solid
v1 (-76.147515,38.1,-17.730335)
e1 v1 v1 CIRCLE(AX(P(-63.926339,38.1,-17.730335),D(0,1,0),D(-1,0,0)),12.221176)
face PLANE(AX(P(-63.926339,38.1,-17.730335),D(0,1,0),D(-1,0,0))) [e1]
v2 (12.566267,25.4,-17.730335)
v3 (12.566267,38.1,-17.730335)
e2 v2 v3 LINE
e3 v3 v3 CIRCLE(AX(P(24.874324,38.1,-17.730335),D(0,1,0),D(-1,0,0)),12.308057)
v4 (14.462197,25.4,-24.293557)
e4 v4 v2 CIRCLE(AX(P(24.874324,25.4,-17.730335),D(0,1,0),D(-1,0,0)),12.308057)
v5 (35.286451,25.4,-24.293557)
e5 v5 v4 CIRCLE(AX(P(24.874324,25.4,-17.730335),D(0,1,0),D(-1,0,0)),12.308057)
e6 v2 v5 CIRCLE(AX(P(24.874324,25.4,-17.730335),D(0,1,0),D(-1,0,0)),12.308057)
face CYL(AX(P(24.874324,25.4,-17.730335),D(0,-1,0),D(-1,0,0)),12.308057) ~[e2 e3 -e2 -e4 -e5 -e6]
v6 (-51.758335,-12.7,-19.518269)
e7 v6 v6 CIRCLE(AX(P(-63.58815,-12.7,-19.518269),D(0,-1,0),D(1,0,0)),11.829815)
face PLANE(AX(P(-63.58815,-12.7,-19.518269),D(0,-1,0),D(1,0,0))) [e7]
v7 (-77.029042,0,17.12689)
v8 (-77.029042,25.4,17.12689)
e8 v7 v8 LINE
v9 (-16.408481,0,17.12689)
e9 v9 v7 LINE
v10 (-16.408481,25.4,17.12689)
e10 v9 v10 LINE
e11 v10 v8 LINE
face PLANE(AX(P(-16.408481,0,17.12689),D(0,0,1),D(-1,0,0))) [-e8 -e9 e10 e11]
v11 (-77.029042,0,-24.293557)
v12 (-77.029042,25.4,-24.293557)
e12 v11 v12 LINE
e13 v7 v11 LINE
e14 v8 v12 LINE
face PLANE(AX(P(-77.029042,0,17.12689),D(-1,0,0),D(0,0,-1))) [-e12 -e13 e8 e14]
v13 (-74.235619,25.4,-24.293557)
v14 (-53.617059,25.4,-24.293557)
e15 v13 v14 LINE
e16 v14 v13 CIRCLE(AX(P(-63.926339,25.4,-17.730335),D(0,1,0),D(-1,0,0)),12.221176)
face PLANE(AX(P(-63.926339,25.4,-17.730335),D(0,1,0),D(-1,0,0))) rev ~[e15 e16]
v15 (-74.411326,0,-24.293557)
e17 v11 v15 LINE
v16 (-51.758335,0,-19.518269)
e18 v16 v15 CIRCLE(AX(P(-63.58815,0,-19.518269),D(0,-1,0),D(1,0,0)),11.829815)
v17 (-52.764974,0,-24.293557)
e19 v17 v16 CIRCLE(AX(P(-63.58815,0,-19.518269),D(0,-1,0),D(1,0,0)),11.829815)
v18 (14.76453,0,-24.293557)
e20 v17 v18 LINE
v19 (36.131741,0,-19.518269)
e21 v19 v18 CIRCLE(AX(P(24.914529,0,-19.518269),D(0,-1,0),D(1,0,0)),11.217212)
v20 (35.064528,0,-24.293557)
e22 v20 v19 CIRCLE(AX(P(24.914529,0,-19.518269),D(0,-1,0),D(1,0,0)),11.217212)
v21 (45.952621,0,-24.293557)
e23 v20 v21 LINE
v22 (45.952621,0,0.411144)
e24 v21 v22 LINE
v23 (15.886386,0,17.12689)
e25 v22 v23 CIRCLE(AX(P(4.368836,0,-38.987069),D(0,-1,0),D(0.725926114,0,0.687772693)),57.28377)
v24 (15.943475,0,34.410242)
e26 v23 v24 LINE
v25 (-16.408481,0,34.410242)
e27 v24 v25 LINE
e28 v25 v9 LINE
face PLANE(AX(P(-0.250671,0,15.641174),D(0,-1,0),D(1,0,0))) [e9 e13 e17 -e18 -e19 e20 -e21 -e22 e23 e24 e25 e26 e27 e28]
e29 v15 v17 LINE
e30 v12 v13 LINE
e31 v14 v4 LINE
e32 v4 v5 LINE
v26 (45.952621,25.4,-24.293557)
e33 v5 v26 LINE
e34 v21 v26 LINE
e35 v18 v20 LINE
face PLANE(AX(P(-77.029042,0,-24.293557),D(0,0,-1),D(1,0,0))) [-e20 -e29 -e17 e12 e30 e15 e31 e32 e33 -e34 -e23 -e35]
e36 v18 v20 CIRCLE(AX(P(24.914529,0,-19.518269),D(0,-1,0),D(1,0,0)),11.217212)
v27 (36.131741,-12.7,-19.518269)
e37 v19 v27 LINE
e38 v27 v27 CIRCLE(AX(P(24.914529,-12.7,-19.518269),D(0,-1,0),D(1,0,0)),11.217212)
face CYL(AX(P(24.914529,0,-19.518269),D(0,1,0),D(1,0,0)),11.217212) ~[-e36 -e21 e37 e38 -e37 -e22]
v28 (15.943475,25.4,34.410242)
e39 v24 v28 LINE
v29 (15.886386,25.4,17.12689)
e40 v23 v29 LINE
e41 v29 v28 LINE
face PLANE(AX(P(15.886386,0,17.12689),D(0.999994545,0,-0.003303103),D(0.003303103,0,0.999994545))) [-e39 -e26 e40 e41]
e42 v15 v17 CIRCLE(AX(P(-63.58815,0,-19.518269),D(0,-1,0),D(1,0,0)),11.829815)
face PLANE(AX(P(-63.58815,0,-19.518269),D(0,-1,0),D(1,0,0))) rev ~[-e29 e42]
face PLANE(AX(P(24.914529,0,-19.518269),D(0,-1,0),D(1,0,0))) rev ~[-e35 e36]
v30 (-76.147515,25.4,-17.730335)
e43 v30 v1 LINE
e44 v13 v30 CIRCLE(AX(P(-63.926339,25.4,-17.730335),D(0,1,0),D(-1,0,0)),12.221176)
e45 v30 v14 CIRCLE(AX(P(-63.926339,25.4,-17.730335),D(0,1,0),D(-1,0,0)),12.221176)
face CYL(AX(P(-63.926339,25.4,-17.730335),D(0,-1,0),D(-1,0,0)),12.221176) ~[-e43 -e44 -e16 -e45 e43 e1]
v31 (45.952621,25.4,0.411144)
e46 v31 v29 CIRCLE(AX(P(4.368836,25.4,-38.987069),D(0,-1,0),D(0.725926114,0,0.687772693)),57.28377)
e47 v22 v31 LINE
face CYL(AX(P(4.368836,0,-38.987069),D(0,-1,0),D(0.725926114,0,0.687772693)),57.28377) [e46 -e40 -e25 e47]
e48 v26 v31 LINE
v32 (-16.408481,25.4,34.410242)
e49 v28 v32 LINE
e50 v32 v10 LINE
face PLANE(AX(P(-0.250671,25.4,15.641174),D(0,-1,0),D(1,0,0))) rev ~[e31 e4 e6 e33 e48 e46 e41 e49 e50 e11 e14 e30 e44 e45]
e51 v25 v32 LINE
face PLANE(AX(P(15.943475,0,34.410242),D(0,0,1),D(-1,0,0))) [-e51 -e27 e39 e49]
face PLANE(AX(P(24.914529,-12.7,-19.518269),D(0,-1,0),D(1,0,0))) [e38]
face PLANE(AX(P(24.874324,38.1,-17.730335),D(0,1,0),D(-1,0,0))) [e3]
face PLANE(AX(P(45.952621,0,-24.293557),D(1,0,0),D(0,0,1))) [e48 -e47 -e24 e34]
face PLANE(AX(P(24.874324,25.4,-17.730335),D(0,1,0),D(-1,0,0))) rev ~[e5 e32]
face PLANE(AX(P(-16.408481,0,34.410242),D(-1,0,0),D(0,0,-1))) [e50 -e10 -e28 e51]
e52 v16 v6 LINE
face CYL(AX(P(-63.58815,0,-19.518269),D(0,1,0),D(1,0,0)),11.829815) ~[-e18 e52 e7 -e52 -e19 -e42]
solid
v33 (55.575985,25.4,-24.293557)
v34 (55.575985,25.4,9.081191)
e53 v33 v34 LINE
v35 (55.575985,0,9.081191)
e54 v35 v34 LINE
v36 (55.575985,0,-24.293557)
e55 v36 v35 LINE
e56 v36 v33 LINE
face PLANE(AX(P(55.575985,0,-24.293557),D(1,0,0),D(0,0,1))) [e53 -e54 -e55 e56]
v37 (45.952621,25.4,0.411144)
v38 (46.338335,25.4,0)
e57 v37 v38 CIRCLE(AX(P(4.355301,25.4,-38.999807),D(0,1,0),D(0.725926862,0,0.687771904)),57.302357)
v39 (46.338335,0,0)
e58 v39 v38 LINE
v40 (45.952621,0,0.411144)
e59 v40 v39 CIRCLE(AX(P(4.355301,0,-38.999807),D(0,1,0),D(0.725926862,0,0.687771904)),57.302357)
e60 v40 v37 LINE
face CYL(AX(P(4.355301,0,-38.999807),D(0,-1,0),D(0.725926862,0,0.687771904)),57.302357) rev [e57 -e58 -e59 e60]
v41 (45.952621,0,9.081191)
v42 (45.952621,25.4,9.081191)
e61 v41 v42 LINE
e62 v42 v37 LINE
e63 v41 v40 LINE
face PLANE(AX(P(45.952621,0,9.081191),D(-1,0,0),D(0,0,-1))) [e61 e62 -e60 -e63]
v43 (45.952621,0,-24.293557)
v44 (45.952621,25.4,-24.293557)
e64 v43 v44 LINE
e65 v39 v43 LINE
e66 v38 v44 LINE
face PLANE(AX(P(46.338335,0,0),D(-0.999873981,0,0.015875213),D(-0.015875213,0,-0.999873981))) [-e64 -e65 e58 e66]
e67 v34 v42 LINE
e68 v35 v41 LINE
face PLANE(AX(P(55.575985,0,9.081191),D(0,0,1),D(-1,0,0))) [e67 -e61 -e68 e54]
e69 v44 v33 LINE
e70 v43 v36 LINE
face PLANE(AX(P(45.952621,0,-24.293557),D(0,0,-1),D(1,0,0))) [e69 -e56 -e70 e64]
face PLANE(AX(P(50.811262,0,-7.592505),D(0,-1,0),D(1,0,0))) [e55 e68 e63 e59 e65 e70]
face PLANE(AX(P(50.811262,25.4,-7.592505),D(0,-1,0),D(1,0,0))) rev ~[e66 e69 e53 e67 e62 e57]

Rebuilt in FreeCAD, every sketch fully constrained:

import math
import FreeCAD as App
import Part
import Sketcher
from FreeCAD import Vector
Q = App.Units.Quantity

doc = App.newDocument("Part")
body = doc.addObject("PartDesign::Body", "Body")
body.AllowCompound = True

# Sketch on XZ plane
sketch1 = doc.addObject("Sketcher::SketchObject", "Sketch")
body.addObject(sketch1)
sketch1.AttachmentSupport = (doc.XZ_Plane, [""])
sketch1.MapMode = "FlatFace"
sketch1.addGeometry([
    Part.LineSegment(Vector(-16.408481, 34.410242, 0), Vector(-16.408481, 17.12689, 0)),  # 0
    Part.LineSegment(Vector(-16.408481, 17.12689, 0), Vector(-77.029042, 17.12689, 0)),  # 1
    Part.LineSegment(Vector(-77.029042, 17.12689, 0), Vector(-77.029042, -24.293557, 0)),  # 2
    Part.LineSegment(Vector(-77.029042, -24.293557, 0), Vector(45.952621, -24.293557, 0)),  # 3
    Part.LineSegment(Vector(45.952621, -24.293557, 0), Vector(45.952621, 0.411144, 0)),  # 4
    Part.ArcOfCircle(Part.Circle(Vector(4.368836, -38.987069, 0), Vector(0, 0, 1), 57.28377), math.radians(43.454056), math.radians(78.400972)),  # 5
    Part.LineSegment(Vector(15.886386, 17.12689, 0), Vector(15.943475, 34.410242, 0)),  # 6
    Part.LineSegment(Vector(15.943475, 34.410242, 0), Vector(-16.408481, 34.410242, 0)),  # 7
    Part.LineSegment(Vector(46.338335, 0, 0), Vector(45.952621, -24.293557, 0)),  # 8
    Part.LineSegment(Vector(45.952621, -24.293557, 0), Vector(55.575985, -24.293557, 0)),  # 9
    Part.LineSegment(Vector(55.575985, -24.293557, 0), Vector(55.575985, 9.081191, 0)),  # 10
    Part.LineSegment(Vector(55.575985, 9.081191, 0), Vector(45.952621, 9.081191, 0)),  # 11
    Part.LineSegment(Vector(45.952621, 9.081191, 0), Vector(45.952621, 0.411144, 0)),  # 12
    Part.ArcOfCircle(Part.Circle(Vector(4.355301, -38.999807, 0), Vector(0, 0, 1), 57.302357), math.radians(42.890305), math.radians(43.453993)),  # 13
], False)
sketch1.addConstraint([
    Sketcher.Constraint("Coincident", 0, 2, 1, 1),
    Sketcher.Constraint("Coincident", 1, 2, 2, 1),
    Sketcher.Constraint("Coincident", 2, 2, 3, 1),
    Sketcher.Constraint("Coincident", 3, 2, 4, 1),
    Sketcher.Constraint("Coincident", 4, 2, 5, 1),
    Sketcher.Constraint("Coincident", 5, 2, 6, 1),
    Sketcher.Constraint("Coincident", 6, 2, 7, 1),
    Sketcher.Constraint("Coincident", 7, 2, 0, 1),
    Sketcher.Constraint("Coincident", 8, 2, 9, 1),
    Sketcher.Constraint("Coincident", 9, 2, 10, 1),
    Sketcher.Constraint("Coincident", 10, 2, 11, 1),
    Sketcher.Constraint("Coincident", 11, 2, 12, 1),
    Sketcher.Constraint("Coincident", 12, 2, 13, 2),
    Sketcher.Constraint("Coincident", 13, 1, 8, 1),
    Sketcher.Constraint("Vertical", 0),
    Sketcher.Constraint("Horizontal", 1),
    Sketcher.Constraint("Vertical", 2),
    Sketcher.Constraint("Horizontal", 3),
    Sketcher.Constraint("Vertical", 4),
    Sketcher.Constraint("Horizontal", 7),
    Sketcher.Constraint("Horizontal", 9),
    Sketcher.Constraint("Vertical", 10),
    Sketcher.Constraint("Horizontal", 11),
    Sketcher.Constraint("Vertical", 12),
    Sketcher.Constraint("Coincident", 8, 2, 3, 2),
    Sketcher.Constraint("Coincident", 12, 2, 4, 2),
    Sketcher.Constraint("PointOnObject", 13, 1, -1),
    Sketcher.Constraint("Horizontal", 1, 2, 5, 2),
    Sketcher.Constraint("Radius", 5, Q("57.28377 mm")),
    Sketcher.Constraint("DistanceY", 4, 1, 4, 2, Q("24.704701 mm")),
    Sketcher.Constraint("Radius", 13, Q("57.302357 mm")),
    Sketcher.Constraint("DistanceX", 1, 2, 1, 1, Q("60.620561 mm")),
    Sketcher.Constraint("DistanceY", 0, 2, 0, 1, Q("17.283352 mm")),
    Sketcher.Constraint("DistanceX", -1, 1, 13, 3, Q("4.355301 mm")),
    Sketcher.Constraint("DistanceY", 3, 2, 6, 2, Q("58.703799 mm")),
    Sketcher.Constraint("DistanceX", 5, 2, 10, 2, Q("39.689599 mm")),
    Sketcher.Constraint("DistanceY", 10, 2, 5, 2, Q("8.045699 mm")),
    Sketcher.Constraint("Distance", 8, Q("24.296619 mm")),
    Sketcher.Constraint("DistanceX", 3, 1, 3, 2, Q("122.981663 mm")),
    Sketcher.Constraint("DistanceX", 7, 2, 7, 1, Q("32.351956 mm")),
    Sketcher.Constraint("DistanceX", 9, 1, 9, 2, Q("9.623364 mm")),
    Sketcher.Constraint("DistanceX", 0, 2, -1, 1, Q("16.408481 mm")),
])
pad1 = doc.addObject("PartDesign::Pad", "Pad")
body.addObject(pad1)
pad1.Profile = sketch1
pad1.Length = Q("1 in")
pad1.Reversed = True

# Sketch on XZ plane
sketch2 = doc.addObject("Sketcher::SketchObject", "Sketch001")
body.addObject(sketch2)
sketch2.AttachmentSupport = (doc.XZ_Plane, [""])
sketch2.MapMode = "FlatFace"
sketch2.addGeometry([
    Part.Circle(Vector(-63.58815, -19.518269, 0), Vector(0, 0, 1), 11.829815),
    Part.Circle(Vector(24.914529, -19.518269, 0), Vector(0, 0, 1), 11.217212),
], False)
sketch2.addConstraint([
    Sketcher.Constraint("Horizontal", 0, 3, 1, 3),
    Sketcher.Constraint("Diameter", 0, Q("23.65963 mm")),
    Sketcher.Constraint("Diameter", 1, Q("22.434424 mm")),
    Sketcher.Constraint("DistanceX", 0, 3, -1, 1, Q("63.58815 mm")),
    Sketcher.Constraint("DistanceY", 0, 3, -1, 1, Q("19.518269 mm")),
    Sketcher.Constraint("DistanceX", -1, 1, 1, 3, Q("24.914529 mm")),
])
pad2 = doc.addObject("PartDesign::Pad", "Pad001")
body.addObject(pad2)
pad2.Profile = sketch2
pad2.Length = Q("0.5 in")

# Sketch on XZ plane
sketch3 = doc.addObject("Sketcher::SketchObject", "Sketch002")
body.addObject(sketch3)
sketch3.AttachmentSupport = (doc.XZ_Plane, [""])
sketch3.MapMode = "FlatFace"
sketch3.AttachmentOffset = App.Placement(Vector(0, 0, -1 * 25.4), App.Rotation())
sketch3.addGeometry([
    Part.Circle(Vector(24.874324, -17.730335, 0), Vector(0, 0, 1), 12.308057),
    Part.Circle(Vector(-63.926339, -17.730335, 0), Vector(0, 0, 1), 12.221176),
], False)
sketch3.addConstraint([
    Sketcher.Constraint("Horizontal", 0, 3, 1, 3),
    Sketcher.Constraint("Diameter", 1, Q("24.442352 mm")),
    Sketcher.Constraint("Diameter", 0, Q("24.616114 mm")),
    Sketcher.Constraint("DistanceX", 1, 3, -1, 1, Q("63.926339 mm")),
    Sketcher.Constraint("DistanceX", -1, 1, 0, 3, Q("24.874324 mm")),
    Sketcher.Constraint("DistanceY", 0, 3, -1, 1, Q("17.730335 mm")),
])
pad3 = doc.addObject("PartDesign::Pad", "Pad002")
body.addObject(pad3)
pad3.Profile = sketch3
pad3.Length = Q("0.5 in")
pad3.Reversed = True

doc.recompute()
